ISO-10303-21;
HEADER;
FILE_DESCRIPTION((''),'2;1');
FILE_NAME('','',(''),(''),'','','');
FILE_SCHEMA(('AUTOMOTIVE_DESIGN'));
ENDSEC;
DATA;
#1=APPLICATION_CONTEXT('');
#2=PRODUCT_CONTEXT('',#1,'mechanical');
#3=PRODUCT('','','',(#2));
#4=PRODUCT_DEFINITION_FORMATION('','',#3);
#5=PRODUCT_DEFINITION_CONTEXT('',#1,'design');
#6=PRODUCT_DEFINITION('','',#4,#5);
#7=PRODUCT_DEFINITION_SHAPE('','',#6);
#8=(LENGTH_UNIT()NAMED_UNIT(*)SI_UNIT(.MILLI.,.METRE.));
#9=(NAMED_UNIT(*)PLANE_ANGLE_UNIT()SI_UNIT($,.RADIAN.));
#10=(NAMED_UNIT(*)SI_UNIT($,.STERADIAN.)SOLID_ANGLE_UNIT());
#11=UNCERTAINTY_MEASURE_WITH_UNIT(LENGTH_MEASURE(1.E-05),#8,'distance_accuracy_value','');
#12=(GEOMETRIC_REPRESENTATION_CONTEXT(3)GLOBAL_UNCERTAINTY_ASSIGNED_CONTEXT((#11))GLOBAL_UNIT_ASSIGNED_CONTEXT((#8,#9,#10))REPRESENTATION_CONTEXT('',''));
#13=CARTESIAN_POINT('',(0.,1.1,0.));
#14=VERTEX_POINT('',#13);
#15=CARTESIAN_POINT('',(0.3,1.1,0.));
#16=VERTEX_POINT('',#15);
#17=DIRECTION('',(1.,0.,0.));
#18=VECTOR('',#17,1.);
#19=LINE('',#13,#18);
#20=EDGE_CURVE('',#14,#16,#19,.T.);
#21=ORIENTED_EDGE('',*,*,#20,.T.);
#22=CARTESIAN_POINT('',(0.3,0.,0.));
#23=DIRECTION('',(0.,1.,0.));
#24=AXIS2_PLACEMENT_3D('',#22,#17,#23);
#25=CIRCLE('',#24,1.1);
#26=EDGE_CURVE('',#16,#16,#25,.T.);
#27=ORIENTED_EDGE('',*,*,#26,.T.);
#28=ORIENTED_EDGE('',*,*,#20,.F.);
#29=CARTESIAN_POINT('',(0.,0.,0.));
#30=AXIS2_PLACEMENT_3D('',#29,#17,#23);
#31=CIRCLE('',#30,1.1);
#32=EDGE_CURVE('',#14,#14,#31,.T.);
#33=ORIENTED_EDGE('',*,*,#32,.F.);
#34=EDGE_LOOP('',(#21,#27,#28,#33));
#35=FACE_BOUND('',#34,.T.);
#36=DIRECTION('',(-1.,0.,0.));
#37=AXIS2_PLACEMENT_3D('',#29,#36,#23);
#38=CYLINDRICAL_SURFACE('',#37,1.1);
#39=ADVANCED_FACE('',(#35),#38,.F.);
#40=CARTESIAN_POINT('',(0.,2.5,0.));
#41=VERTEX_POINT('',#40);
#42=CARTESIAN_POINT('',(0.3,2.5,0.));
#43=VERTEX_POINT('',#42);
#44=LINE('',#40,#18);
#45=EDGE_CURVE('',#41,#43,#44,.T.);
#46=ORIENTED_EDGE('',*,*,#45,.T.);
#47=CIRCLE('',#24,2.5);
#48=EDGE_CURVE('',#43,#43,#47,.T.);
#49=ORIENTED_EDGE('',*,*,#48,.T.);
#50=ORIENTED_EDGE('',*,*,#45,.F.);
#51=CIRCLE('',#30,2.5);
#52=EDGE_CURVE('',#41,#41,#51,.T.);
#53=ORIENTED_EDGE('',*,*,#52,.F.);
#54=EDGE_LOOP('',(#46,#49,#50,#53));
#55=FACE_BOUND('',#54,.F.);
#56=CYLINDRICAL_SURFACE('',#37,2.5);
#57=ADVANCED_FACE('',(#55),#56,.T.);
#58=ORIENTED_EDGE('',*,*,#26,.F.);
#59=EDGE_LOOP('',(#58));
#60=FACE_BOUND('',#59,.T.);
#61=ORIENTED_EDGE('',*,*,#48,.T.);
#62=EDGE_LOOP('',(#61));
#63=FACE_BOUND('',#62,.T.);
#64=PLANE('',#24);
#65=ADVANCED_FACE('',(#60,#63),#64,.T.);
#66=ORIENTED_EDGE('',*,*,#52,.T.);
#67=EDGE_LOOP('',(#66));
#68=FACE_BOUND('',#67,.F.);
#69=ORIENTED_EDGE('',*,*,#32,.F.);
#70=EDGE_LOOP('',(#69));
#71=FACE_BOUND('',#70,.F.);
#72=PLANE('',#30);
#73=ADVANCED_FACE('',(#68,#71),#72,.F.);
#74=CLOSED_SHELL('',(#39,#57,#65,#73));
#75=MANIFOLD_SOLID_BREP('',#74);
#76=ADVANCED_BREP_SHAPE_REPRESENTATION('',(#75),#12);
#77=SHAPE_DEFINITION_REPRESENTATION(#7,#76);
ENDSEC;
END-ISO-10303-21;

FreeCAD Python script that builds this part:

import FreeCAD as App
import Part
import Sketcher

V = App.Vector
Q = App.Units.Quantity

doc = App.newDocument("Part")
body = doc.addObject("PartDesign::Body", "Body")

# Sketch on YZ plane
sketch1 = body.newObject("Sketcher::SketchObject", "Sketch")
sketch1.AttachmentSupport = (doc.getObject("YZ_Plane"), [""])
sketch1.MapMode = "FlatFace"
sketch1.addGeometry(Part.Circle(V(0, 0, 0), V(0, 0, 1), 2.5), False)
sketch1.addGeometry(Part.Circle(V(0, 0, 0), V(0, 0, 1), 1.1), False)
sketch1.addConstraint(Sketcher.Constraint("Coincident", 0, 3, -1, 1))
sketch1.addConstraint(Sketcher.Constraint("Coincident", 1, 3, -1, 1))
sketch1.addConstraint(Sketcher.Constraint("Diameter", 0, Q("5 mm")))
sketch1.addConstraint(Sketcher.Constraint("Diameter", 1, Q("2.2 mm")))
pad1 = body.newObject("PartDesign::Pad", "Pad")
pad1.Profile = sketch1
pad1.Length = 0.3

doc.recompute()
